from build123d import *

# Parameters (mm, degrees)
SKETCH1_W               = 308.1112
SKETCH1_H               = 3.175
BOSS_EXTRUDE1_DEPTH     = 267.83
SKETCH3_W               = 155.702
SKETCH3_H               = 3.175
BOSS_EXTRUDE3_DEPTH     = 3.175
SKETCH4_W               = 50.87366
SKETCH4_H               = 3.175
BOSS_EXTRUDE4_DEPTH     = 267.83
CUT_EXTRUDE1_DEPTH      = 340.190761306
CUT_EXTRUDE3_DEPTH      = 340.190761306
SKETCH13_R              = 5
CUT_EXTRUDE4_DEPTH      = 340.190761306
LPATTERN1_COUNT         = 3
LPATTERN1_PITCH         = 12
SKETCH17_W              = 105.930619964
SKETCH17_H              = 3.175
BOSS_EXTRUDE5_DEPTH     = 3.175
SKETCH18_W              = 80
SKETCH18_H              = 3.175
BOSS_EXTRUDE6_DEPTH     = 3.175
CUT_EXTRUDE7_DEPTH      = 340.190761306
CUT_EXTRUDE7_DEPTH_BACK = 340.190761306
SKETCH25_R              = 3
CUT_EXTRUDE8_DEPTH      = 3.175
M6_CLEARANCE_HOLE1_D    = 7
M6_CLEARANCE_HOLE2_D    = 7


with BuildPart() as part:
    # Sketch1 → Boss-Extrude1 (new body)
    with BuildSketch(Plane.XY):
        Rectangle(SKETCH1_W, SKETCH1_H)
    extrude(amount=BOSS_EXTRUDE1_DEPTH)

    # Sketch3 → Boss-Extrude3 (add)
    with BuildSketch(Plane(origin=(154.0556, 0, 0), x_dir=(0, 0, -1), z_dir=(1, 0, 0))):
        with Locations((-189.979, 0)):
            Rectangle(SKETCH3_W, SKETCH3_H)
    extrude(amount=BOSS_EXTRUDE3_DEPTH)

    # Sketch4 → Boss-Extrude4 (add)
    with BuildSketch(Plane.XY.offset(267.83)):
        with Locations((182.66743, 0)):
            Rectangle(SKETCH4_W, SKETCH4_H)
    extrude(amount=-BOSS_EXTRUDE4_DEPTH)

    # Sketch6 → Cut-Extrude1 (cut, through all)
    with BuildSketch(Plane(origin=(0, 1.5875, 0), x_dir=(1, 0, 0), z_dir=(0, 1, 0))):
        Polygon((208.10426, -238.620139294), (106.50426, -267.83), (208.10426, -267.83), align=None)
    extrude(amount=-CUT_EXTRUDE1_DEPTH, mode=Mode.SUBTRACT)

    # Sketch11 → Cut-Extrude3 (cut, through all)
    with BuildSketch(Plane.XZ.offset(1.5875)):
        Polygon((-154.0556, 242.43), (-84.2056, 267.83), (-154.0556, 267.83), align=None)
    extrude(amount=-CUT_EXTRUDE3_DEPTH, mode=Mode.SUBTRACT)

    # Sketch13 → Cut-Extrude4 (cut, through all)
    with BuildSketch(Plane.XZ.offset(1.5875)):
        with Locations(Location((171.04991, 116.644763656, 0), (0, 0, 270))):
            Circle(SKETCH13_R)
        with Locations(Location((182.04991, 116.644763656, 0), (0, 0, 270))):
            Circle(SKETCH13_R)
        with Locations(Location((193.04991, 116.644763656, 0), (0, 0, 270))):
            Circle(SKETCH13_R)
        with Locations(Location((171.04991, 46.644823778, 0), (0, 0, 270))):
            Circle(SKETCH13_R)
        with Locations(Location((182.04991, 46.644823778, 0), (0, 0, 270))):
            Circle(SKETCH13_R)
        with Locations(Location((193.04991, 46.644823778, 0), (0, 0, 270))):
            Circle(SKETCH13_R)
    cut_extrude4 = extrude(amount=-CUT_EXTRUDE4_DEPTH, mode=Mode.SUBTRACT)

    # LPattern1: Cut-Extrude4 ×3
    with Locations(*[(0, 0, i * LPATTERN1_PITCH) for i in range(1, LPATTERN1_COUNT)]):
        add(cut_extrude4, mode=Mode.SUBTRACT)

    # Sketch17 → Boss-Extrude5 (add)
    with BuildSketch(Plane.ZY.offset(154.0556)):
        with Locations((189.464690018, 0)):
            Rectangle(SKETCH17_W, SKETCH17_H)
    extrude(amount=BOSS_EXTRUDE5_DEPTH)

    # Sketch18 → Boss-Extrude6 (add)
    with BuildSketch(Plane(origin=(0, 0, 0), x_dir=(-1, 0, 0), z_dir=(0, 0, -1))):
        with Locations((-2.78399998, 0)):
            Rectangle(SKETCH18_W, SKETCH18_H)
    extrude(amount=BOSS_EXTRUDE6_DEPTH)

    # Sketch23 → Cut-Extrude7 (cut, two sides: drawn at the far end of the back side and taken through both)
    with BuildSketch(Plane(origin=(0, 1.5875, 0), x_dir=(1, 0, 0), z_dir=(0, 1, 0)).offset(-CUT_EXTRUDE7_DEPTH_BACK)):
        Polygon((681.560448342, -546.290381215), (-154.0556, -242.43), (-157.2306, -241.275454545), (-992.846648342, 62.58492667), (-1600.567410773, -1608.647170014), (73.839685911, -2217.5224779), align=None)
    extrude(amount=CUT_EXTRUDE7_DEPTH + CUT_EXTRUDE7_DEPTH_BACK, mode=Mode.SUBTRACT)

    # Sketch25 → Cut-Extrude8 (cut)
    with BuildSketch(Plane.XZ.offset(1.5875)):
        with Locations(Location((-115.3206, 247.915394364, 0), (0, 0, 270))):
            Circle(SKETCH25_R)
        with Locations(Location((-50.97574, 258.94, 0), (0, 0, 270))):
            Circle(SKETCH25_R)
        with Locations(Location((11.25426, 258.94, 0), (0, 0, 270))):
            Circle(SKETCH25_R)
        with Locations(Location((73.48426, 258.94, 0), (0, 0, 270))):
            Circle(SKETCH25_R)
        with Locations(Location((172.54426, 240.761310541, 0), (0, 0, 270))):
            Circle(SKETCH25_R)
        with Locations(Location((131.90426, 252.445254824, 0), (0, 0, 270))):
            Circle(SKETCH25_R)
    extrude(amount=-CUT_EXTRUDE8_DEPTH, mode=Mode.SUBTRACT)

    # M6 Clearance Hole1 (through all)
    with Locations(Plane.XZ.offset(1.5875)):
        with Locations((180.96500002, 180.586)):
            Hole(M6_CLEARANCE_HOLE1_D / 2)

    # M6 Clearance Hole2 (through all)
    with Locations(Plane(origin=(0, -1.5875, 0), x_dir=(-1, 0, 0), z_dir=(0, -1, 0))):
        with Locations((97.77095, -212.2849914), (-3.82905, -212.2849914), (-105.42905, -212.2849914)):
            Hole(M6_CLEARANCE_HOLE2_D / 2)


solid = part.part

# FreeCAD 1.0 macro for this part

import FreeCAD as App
import Part
import Sketcher

V = App.Vector
Q = App.Units.Quantity

doc = App.newDocument("Part")
body = doc.addObject("PartDesign::Body", "Body")

# Sketch on XY plane
sketch1 = body.newObject("Sketcher::SketchObject", "Sketch")
sketch1.AttachmentSupport = (doc.getObject("XY_Plane"), [""])
sketch1.MapMode = "FlatFace"
sketch1.addGeometry(Part.LineSegment(V(-154.1, 1.6, 0), V(-154.1, -1.6, 0)), False)
sketch1.addGeometry(Part.LineSegment(V(-154.1, -1.6, 0), V(154.1, -1.6, 0)), False)
sketch1.addGeometry(Part.LineSegment(V(154.1, -1.6, 0), V(154.1, 1.6, 0)), False)
sketch1.addGeometry(Part.LineSegment(V(154.1, 1.6, 0), V(-154.1, 1.6, 0)), False)
sketch1.addConstraint(Sketcher.Constraint("Coincident", 0, 2, 1, 1))
sketch1.addConstraint(Sketcher.Constraint("Coincident", 1, 2, 2, 1))
sketch1.addConstraint(Sketcher.Constraint("Coincident", 2, 2, 3, 1))
sketch1.addConstraint(Sketcher.Constraint("Coincident", 3, 2, 0, 1))
sketch1.addConstraint(Sketcher.Constraint("Vertical", 0))
sketch1.addConstraint(Sketcher.Constraint("Horizontal", 1))
sketch1.addConstraint(Sketcher.Constraint("Vertical", 2))
sketch1.addConstraint(Sketcher.Constraint("Horizontal", 3))
sketch1.addConstraint(Sketcher.Constraint("Symmetric", 0, 2, 2, 2, -1, 1))
sketch1.addConstraint(Sketcher.Constraint("DistanceY", 0, 2, 0, 1, Q("0.125 in")))
sketch1.addConstraint(Sketcher.Constraint("DistanceX", 1, 1, 1, 2, 308.1112))
pad1 = body.newObject("PartDesign::Pad", "Pad")
pad1.Profile = sketch1
pad1.Length = 267.83

# Sketch on YZ plane
sketch2 = body.newObject("Sketcher::SketchObject", "Sketch001")
sketch2.AttachmentSupport = (doc.getObject("YZ_Plane"), [""])
sketch2.MapMode = "FlatFace"
sketch2.AttachmentOffset = App.Placement(V(0, 0, 154.0556), App.Rotation())
sketch2.addGeometry(Part.LineSegment(V(1.6, 267.8, 0), V(-1.6, 267.8, 0)), False)
sketch2.addGeometry(Part.LineSegment(V(-1.6, 267.8, 0), V(-1.6, 112.1, 0)), False)
sketch2.addGeometry(Part.LineSegment(V(-1.6, 112.1, 0), V(1.6, 112.1, 0)), False)
sketch2.addGeometry(Part.LineSegment(V(1.6, 112.1, 0), V(1.6, 267.8, 0)), False)
sketch2.addConstraint(Sketcher.Constraint("Coincident", 0, 2, 1, 1))
sketch2.addConstraint(Sketcher.Constraint("Coincident", 1, 2, 2, 1))
sketch2.addConstraint(Sketcher.Constraint("Coincident", 2, 2, 3, 1))
sketch2.addConstraint(Sketcher.Constraint("Coincident", 3, 2, 0, 1))
sketch2.addConstraint(Sketcher.Constraint("Horizontal", 0))
sketch2.addConstraint(Sketcher.Constraint("Vertical", 1))
sketch2.addConstraint(Sketcher.Constraint("Horizontal", 2))
sketch2.addConstraint(Sketcher.Constraint("Vertical", 3))
sketch2.addConstraint(Sketcher.Constraint("DistanceY", 1, 2, 1, 1, Q("6.13 in")))
sketch2.addConstraint(Sketcher.Constraint("DistanceX", 0, 2, 0, 1, Q("0.125 in")))
sketch2.addConstraint(Sketcher.Constraint("DistanceX", 0, 2, -1, 1, Q("0.0625 in")))
sketch2.addConstraint(Sketcher.Constraint("DistanceY", -1, 1, 0, 2, 267.83))
pad2 = body.newObject("PartDesign::Pad", "Pad001")
pad2.Profile = sketch2
pad2.Length = Q("0.125 in")

# Sketch on XY plane
sketch3 = body.newObject("Sketcher::SketchObject", "Sketch002")
sketch3.AttachmentSupport = (doc.getObject("XY_Plane"), [""])
sketch3.MapMode = "FlatFace"
sketch3.AttachmentOffset = App.Placement(V(0, 0, 267.83), App.Rotation())
sketch3.addGeometry(Part.LineSegment(V(157.2, 1.6, 0), V(157.2, -1.6, 0)), False)
sketch3.addGeometry(Part.LineSegment(V(157.2, -1.6, 0), V(208.1, -1.6, 0)), False)
sketch3.addGeometry(Part.LineSegment(V(208.1, -1.6, 0), V(208.1, 1.6, 0)), False)
sketch3.addGeometry(Part.LineSegment(V(208.1, 1.6, 0), V(157.2, 1.6, 0)), False)
sketch3.addConstraint(Sketcher.Constraint("Coincident", 0, 2, 1, 1))
sketch3.addConstraint(Sketcher.Constraint("Coincident", 1, 2, 2, 1))
sketch3.addConstraint(Sketcher.Constraint("Coincident", 2, 2, 3, 1))
sketch3.addConstraint(Sketcher.Constraint("Coincident", 3, 2, 0, 1))
sketch3.addConstraint(Sketcher.Constraint("Vertical", 0))
sketch3.addConstraint(Sketcher.Constraint("Horizontal", 1))
sketch3.addConstraint(Sketcher.Constraint("Vertical", 2))
sketch3.addConstraint(Sketcher.Constraint("Horizontal", 3))
sketch3.addConstraint(Sketcher.Constraint("DistanceY", 0, 2, 0, 1, Q("0.125 in")))
sketch3.addConstraint(Sketcher.Constraint("DistanceX", 1, 1, 1, 2, Q("2.0029 in")))
sketch3.addConstraint(Sketcher.Constraint("DistanceY", 0, 2, -1, 1, Q("0.0625 in")))
sketch3.addConstraint(Sketcher.Constraint("DistanceX", -1, 1, 0, 2, 157.2306))
pad3 = body.newObject("PartDesign::Pad", "Pad002")
pad3.Profile = sketch3
pad3.Length = 267.83
pad3.Reversed = True

# Sketch on XZ plane
sketch4 = body.newObject("Sketcher::SketchObject", "Sketch003")
sketch4.AttachmentSupport = (doc.getObject("XZ_Plane"), [""])
sketch4.MapMode = "FlatFace"
sketch4.AttachmentOffset = App.Placement(V(0, 0, -0.0625 * 25.4), App.Rotation())
sketch4.addGeometry(Part.LineSegment(V(208, 239, 0), V(107, 268, 0)), False)
sketch4.addGeometry(Part.LineSegment(V(107, 268, 0), V(208, 268, 0)), False)
sketch4.addGeometry(Part.LineSegment(V(208, 268, 0), V(208, 239, 0)), False)
sketch4.addConstraint(Sketcher.Constraint("Coincident", 0, 2, 1, 1))
sketch4.addConstraint(Sketcher.Constraint("Coincident", 1, 2, 2, 1))
sketch4.addConstraint(Sketcher.Constraint("Coincident", 2, 2, 0, 1))
sketch4.addConstraint(Sketcher.Constraint("Horizontal", 1))
sketch4.addConstraint(Sketcher.Constraint("Vertical", 2))
sketch4.addConstraint(Sketcher.Constraint("DistanceX", 1, 1, 1, 2, Q("4 in")))
sketch4.addConstraint(Sketcher.Constraint("DistanceY", 2, 2, 2, 1, 29.209861))
sketch4.addConstraint(Sketcher.Constraint("DistanceY", -1, 1, 0, 2, 267.83))
sketch4.addConstraint(Sketcher.Constraint("DistanceX", -1, 1, 0, 2, 106.50426))
pocket1 = body.newObject("PartDesign::Pocket", "Pocket")
pocket1.Profile = sketch4
pocket1.Type = "ThroughAll"
pocket1.Reversed = True

# Sketch on XZ plane
sketch5 = body.newObject("Sketcher::SketchObject", "Sketch004")
sketch5.AttachmentSupport = (doc.getObject("XZ_Plane"), [""])
sketch5.MapMode = "FlatFace"
sketch5.AttachmentOffset = App.Placement(V(0, 0, 0.0625 * 25.4), App.Rotation())
sketch5.addGeometry(Part.LineSegment(V(-154, 242, 0), V(-84, 268, 0)), False)
sketch5.addGeometry(Part.LineSegment(V(-84, 268, 0), V(-154, 268, 0)), False)
sketch5.addGeometry(Part.LineSegment(V(-154, 268, 0), V(-154, 242, 0)), False)
sketch5.addConstraint(Sketcher.Constraint("Coincident", 0, 2, 1, 1))
sketch5.addConstraint(Sketcher.Constraint("Coincident", 1, 2, 2, 1))
sketch5.addConstraint(Sketcher.Constraint("Coincident", 2, 2, 0, 1))
sketch5.addConstraint(Sketcher.Constraint("Horizontal", 1))
sketch5.addConstraint(Sketcher.Constraint("Vertical", 2))
sketch5.addConstraint(Sketcher.Constraint("DistanceY", 2, 2, 2, 1, Q("1 in")))
sketch5.addConstraint(Sketcher.Constraint("DistanceX", 1, 2, 1, 1, Q("2.75 in")))
sketch5.addConstraint(Sketcher.Constraint("DistanceX", 0, 2, -1, 1, 84.2056))
sketch5.addConstraint(Sketcher.Constraint("DistanceY", -1, 1, 0, 2, 267.83))
pocket2 = body.newObject("PartDesign::Pocket", "Pocket001")
pocket2.Profile = sketch5
pocket2.Type = "ThroughAll"

# Sketch on XZ plane
sketch6 = body.newObject("Sketcher::SketchObject", "Sketch005")
sketch6.AttachmentSupport = (doc.getObject("XZ_Plane"), [""])
sketch6.MapMode = "FlatFace"
sketch6.AttachmentOffset = App.Placement(V(0, 0, 0.0625 * 25.4), App.Rotation())
sketch6.addGeometry(Part.Circle(V(171, 117, 0), V(0, 0, 1), 5), False)
sketch6.addGeometry(Part.Circle(V(182, 117, 0), V(0, 0, 1), 5), False)
sketch6.addGeometry(Part.Circle(V(193, 117, 0), V(0, 0, 1), 5), False)
sketch6.addGeometry(Part.Circle(V(171, 47, 0), V(0, 0, 1), 5), False)
sketch6.addGeometry(Part.Circle(V(182, 47, 0), V(0, 0, 1), 5), False)
sketch6.addGeometry(Part.Circle(V(193, 47, 0), V(0, 0, 1), 5), False)
sketch6.addConstraint(Sketcher.Constraint("Equal", 0, 1))
sketch6.addConstraint(Sketcher.Constraint("Equal", 1, 2))
sketch6.addConstraint(Sketcher.Constraint("Equal", 2, 3))
sketch6.addConstraint(Sketcher.Constraint("Equal", 3, 4))
sketch6.addConstraint(Sketcher.Constraint("Equal", 4, 5))
sketch6.addConstraint(Sketcher.Constraint("Horizontal", 0, 3, 1, 3))
sketch6.addConstraint(Sketcher.Constraint("Horizontal", 1, 3, 2, 3))
sketch6.addConstraint(Sketcher.Constraint("Horizontal", 3, 3, 4, 3))
sketch6.addConstraint(Sketcher.Constraint("Horizontal", 4, 3, 5, 3))
sketch6.addConstraint(Sketcher.Constraint("Vertical", 0, 3, 3, 3))
sketch6.addConstraint(Sketcher.Constraint("Vertical", 1, 3, 4, 3))
sketch6.addConstraint(Sketcher.Constraint("Vertical", 2, 3, 5, 3))
sketch6.addConstraint(Sketcher.Constraint("Diameter", 0, 10.0))
sketch6.addConstraint(Sketcher.Constraint("DistanceX", 0, 3, 1, 3, 11.0))
sketch6.addConstraint(Sketcher.Constraint("DistanceX", 1, 3, 2, 3, 11.0))
sketch6.addConstraint(Sketcher.Constraint("DistanceX", -1, 1, 0, 3, 171.04991))
sketch6.addConstraint(Sketcher.Constraint("DistanceY", 3, 3, 0, 3, 69.99994))
sketch6.addConstraint(Sketcher.Constraint("DistanceY", -1, 1, 0, 3, 116.644764))
pocket3 = body.newObject("PartDesign::Pocket", "Pocket002")
pocket3.Profile = sketch6
pocket3.Type = "ThroughAll"
doc.recompute()

linearpattern = body.newObject("PartDesign::LinearPattern", "LinearPattern")
linearpattern.Originals = [pocket3]
linearpattern.Direction = (doc.getObject("Z_Axis"), [""])
linearpattern.Mode = "offset"
linearpattern.Offset = 12
linearpattern.Occurrences = 3
body.Tip = linearpattern

# Sketch on YZ plane
sketch7 = body.newObject("Sketcher::SketchObject", "Sketch006")
sketch7.AttachmentSupport = (doc.getObject("YZ_Plane"), [""])
sketch7.MapMode = "FlatFace"
sketch7.AttachmentOffset = App.Placement(V(0, 0, -154.0556), App.Rotation())
sketch7.addGeometry(Part.LineSegment(V(1.6, 136.5, 0), V(-1.6, 136.5, 0)), False)
sketch7.addGeometry(Part.LineSegment(V(-1.6, 136.5, 0), V(-1.6, 242.4, 0)), False)
sketch7.addGeometry(Part.LineSegment(V(-1.6, 242.4, 0), V(1.6, 242.4, 0)), False)
sketch7.addGeometry(Part.LineSegment(V(1.6, 242.4, 0), V(1.6, 136.5, 0)), False)
sketch7.addConstraint(Sketcher.Constraint("Coincident", 0, 2, 1, 1))
sketch7.addConstraint(Sketcher.Constraint("Coincident", 1, 2, 2, 1))
sketch7.addConstraint(Sketcher.Constraint("Coincident", 2, 2, 3, 1))
sketch7.addConstraint(Sketcher.Constraint("Coincident", 3, 2, 0, 1))
sketch7.addConstraint(Sketcher.Constraint("Horizontal", 0))
sketch7.addConstraint(Sketcher.Constraint("Vertical", 1))
sketch7.addConstraint(Sketcher.Constraint("Horizontal", 2))
sketch7.addConstraint(Sketcher.Constraint("Vertical", 3))
sketch7.addConstraint(Sketcher.Constraint("DistanceX", 0, 2, 0, 1, Q("0.125 in")))
sketch7.addConstraint(Sketcher.Constraint("DistanceX", 0, 2, -1, 1, Q("0.0625 in")))
sketch7.addConstraint(Sketcher.Constraint("DistanceY", 1, 1, 1, 2, 105.93062))
sketch7.addConstraint(Sketcher.Constraint("DistanceY", -1, 1, 1, 2, 242.43))
pad4 = body.newObject("PartDesign::Pad", "Pad003")
pad4.Profile = sketch7
pad4.Length = Q("0.125 in")
pad4.Reversed = True

# Sketch on XY plane
sketch8 = body.newObject("Sketcher::SketchObject", "Sketch007")
sketch8.AttachmentSupport = (doc.getObject("XY_Plane"), [""])
sketch8.MapMode = "FlatFace"
sketch8.addGeometry(Part.LineSegment(V(42.8, 1.6, 0), V(42.8, -1.6, 0)), False)
sketch8.addGeometry(Part.LineSegment(V(42.8, -1.6, 0), V(-37.2, -1.6, 0)), False)
sketch8.addGeometry(Part.LineSegment(V(-37.2, -1.6, 0), V(-37.2, 1.6, 0)), False)
sketch8.addGeometry(Part.LineSegment(V(-37.2, 1.6, 0), V(42.8, 1.6, 0)), False)
sketch8.addConstraint(Sketcher.Constraint("Coincident", 0, 2, 1, 1))
sketch8.addConstraint(Sketcher.Constraint("Coincident", 1, 2, 2, 1))
sketch8.addConstraint(Sketcher.Constraint("Coincident", 2, 2, 3, 1))
sketch8.addConstraint(Sketcher.Constraint("Coincident", 3, 2, 0, 1))
sketch8.addConstraint(Sketcher.Constraint("Vertical", 0))
sketch8.addConstraint(Sketcher.Constraint("Horizontal", 1))
sketch8.addConstraint(Sketcher.Constraint("Vertical", 2))
sketch8.addConstraint(Sketcher.Constraint("Horizontal", 3))
sketch8.addConstraint(Sketcher.Constraint("DistanceY", 0, 2, 0, 1, Q("0.125 in")))
sketch8.addConstraint(Sketcher.Constraint("DistanceY", 0, 2, -1, 1, Q("0.0625 in")))
sketch8.addConstraint(Sketcher.Constraint("DistanceX", 1, 2, 1, 1, 80.0))
sketch8.addConstraint(Sketcher.Constraint("DistanceX", -1, 1, 0, 2, 42.784))
pad5 = body.newObject("PartDesign::Pad", "Pad004")
pad5.Profile = sketch8
pad5.Length = Q("0.125 in")
pad5.Reversed = True

# Sketch on XZ plane
sketch9 = body.newObject("Sketcher::SketchObject", "Sketch008")
sketch9.AttachmentSupport = (doc.getObject("XZ_Plane"), [""])
sketch9.MapMode = "FlatFace"
sketch9.AttachmentOffset = App.Placement(V(0, 0, -0.0625 * 25.4), App.Rotation())
sketch9.addGeometry(Part.LineSegment(V(681.6, 546.3, 0), V(-154.1, 242.4, 0)), False)
sketch9.addGeometry(Part.LineSegment(V(-154.1, 242.4, 0), V(-157.2, 241.3, 0)), False)
sketch9.addGeometry(Part.LineSegment(V(-157.2, 241.3, 0), V(-992.8, -62.6, 0)), False)
sketch9.addGeometry(Part.LineSegment(V(-992.8, -62.6, 0), V(-1600.6, 1608.6, 0)), False)
sketch9.addGeometry(Part.LineSegment(V(-1600.6, 1608.6, 0), V(73.8, 2217.5, 0)), False)
sketch9.addGeometry(Part.LineSegment(V(73.8, 2217.5, 0), V(681.6, 546.3, 0)), False)
sketch9.addConstraint(Sketcher.Constraint("Coincident", 0, 2, 1, 1))
sketch9.addConstraint(Sketcher.Constraint("Coincident", 1, 2, 2, 1))
sketch9.addConstraint(Sketcher.Constraint("Coincident", 2, 2, 3, 1))
sketch9.addConstraint(Sketcher.Constraint("Coincident", 3, 2, 4, 1))
sketch9.addConstraint(Sketcher.Constraint("Coincident", 4, 2, 5, 1))
sketch9.addConstraint(Sketcher.Constraint("Coincident", 5, 2, 0, 1))
sketch9.addConstraint(Sketcher.Constraint("Parallel", 0, 1))
sketch9.addConstraint(Sketcher.Constraint("Parallel", 1, 2))
sketch9.addConstraint(Sketcher.Constraint("Perpendicular", 2, 3))
sketch9.addConstraint(Sketcher.Constraint("Perpendicular", 3, 4))
sketch9.addConstraint(Sketcher.Constraint("Perpendicular", 4, 5))
sketch9.addConstraint(Sketcher.Constraint("Equal", 0, 2))
sketch9.addConstraint(Sketcher.Constraint("DistanceX", 1, 2, 0, 2, Q("0.125 in")))
sketch9.addConstraint(Sketcher.Constraint("DistanceX", 0, 2, -1, 1, 154.0556))
sketch9.addConstraint(Sketcher.Constraint("DistanceY", -1, 1, 0, 2, 242.43))
sketch9.addConstraint(Sketcher.Constraint("Distance", 3, 1778.297288))
sketch9.addConstraint(Sketcher.Constraint("Distance", 4, 1781.67569))
sketch9.addConstraint(Sketcher.Constraint("DistanceX", 2, 2, -1, 1, 992.846648))
pocket4 = body.newObject("PartDesign::Pocket", "Pocket003")
pocket4.Profile = sketch9
pocket4.Type = "ThroughAll"
pocket4.Midplane = True

# Sketch on XZ plane
sketch10 = body.newObject("Sketcher::SketchObject", "Sketch009")
sketch10.AttachmentSupport = (doc.getObject("XZ_Plane"), [""])
sketch10.MapMode = "FlatFace"
sketch10.AttachmentOffset = App.Placement(V(0, 0, 0.0625 * 25.4), App.Rotation())
sketch10.addGeometry(Part.Circle(V(-115.3, 247.9, 0), V(0, 0, 1), 3), False)
sketch10.addGeometry(Part.Circle(V(-51, 258.9, 0), V(0, 0, 1), 3), False)
sketch10.addGeometry(Part.Circle(V(11.3, 258.9, 0), V(0, 0, 1), 3), False)
sketch10.addGeometry(Part.Circle(V(73.5, 258.9, 0), V(0, 0, 1), 3), False)
sketch10.addGeometry(Part.Circle(V(172.5, 240.8, 0), V(0, 0, 1), 3), False)
sketch10.addGeometry(Part.Circle(V(131.9, 252.4, 0), V(0, 0, 1), 3), False)
sketch10.addConstraint(Sketcher.Constraint("Equal", 0, 1))
sketch10.addConstraint(Sketcher.Constraint("Equal", 1, 2))
sketch10.addConstraint(Sketcher.Constraint("Equal", 2, 3))
sketch10.addConstraint(Sketcher.Constraint("Equal", 3, 4))
sketch10.addConstraint(Sketcher.Constraint("Equal", 4, 5))
sketch10.addConstraint(Sketcher.Constraint("Horizontal", 1, 3, 2, 3))
sketch10.addConstraint(Sketcher.Constraint("Horizontal", 2, 3, 3, 3))
sketch10.addConstraint(Sketcher.Constraint("DistanceX", 1, 3, 3, 3, Q("4.9 in")))
sketch10.addConstraint(Sketcher.Constraint("DistanceX", 3, 3, 4, 3, Q("3.9 in")))
sketch10.addConstraint(Sketcher.Constraint("DistanceX", 5, 3, 4, 3, Q("1.6 in")))
sketch10.addConstraint(Sketcher.Constraint("Diameter", 0, 6.0))
sketch10.addConstraint(Sketcher.Constraint("DistanceX", 1, 3, 2, 3, Q("2.45 in")))
sketch10.addConstraint(Sketcher.Constraint("DistanceX", 0, 3, -1, 1, 115.3206))
sketch10.addConstraint(Sketcher.Constraint("DistanceY", -1, 1, 1, 3, 258.94))
sketch10.addConstraint(Sketcher.Constraint("DistanceX", 1, 3, -1, 1, 50.97574))
sketch10.addConstraint(Sketcher.Constraint("DistanceY", -1, 1, 4, 3, 240.761311))
sketch10.addConstraint(Sketcher.Constraint("DistanceY", 0, 3, 5, 3, 4.52986))
sketch10.addConstraint(Sketcher.Constraint("DistanceY", -1, 1, 0, 3, 247.915394))
pocket5 = body.newObject("PartDesign::Pocket", "Pocket004")
pocket5.Profile = sketch10
pocket5.Length = Q("0.125 in")

# Sketch on XZ plane
sketch11 = body.newObject("Sketcher::SketchObject", "Sketch010")
sketch11.AttachmentSupport = (doc.getObject("XZ_Plane"), [""])
sketch11.MapMode = "FlatFace"
sketch11.AttachmentOffset = App.Placement(V(0, 0, 0.0625 * 25.4), App.Rotation())
sketch11.addGeometry(Part.Circle(V(181, 180.6, 0), V(0, 0, 1), 3.5), False)
sketch11.addConstraint(Sketcher.Constraint("Diameter", 0, 7.0))
sketch11.addConstraint(Sketcher.Constraint("DistanceX", -1, 1, 0, 3, 180.965))
sketch11.addConstraint(Sketcher.Constraint("DistanceY", -1, 1, 0, 3, 180.586))
doc.recompute()
hole = body.newObject("PartDesign::Hole", "Hole")
hole.Profile = sketch11
hole.ThreadType = "None"
hole.Diameter = 7
hole.DepthType = "ThroughAll"

# Sketch on XZ plane
sketch12 = body.newObject("Sketcher::SketchObject", "Sketch011")
sketch12.AttachmentSupport = (doc.getObject("XZ_Plane"), [""])
sketch12.MapMode = "FlatFace"
sketch12.AttachmentOffset = App.Placement(V(0, 0, 0.0625 * 25.4), App.Rotation())
sketch12.addGeometry(Part.Circle(V(-97.8, 212.3, 0), V(0, 0, 1), 3.5), False)
sketch12.addGeometry(Part.Circle(V(3.8, 212.3, 0), V(0, 0, 1), 3.5), False)
sketch12.addGeometry(Part.Circle(V(105.4, 212.3, 0), V(0, 0, 1), 3.5), False)
sketch12.addConstraint(Sketcher.Constraint("Equal", 0, 1))
sketch12.addConstraint(Sketcher.Constraint("Equal", 1, 2))
sketch12.addConstraint(Sketcher.Constraint("Horizontal", 0, 3, 1, 3))
sketch12.addConstraint(Sketcher.Constraint("Horizontal", 1, 3, 2, 3))
sketch12.addConstraint(Sketcher.Constraint("DistanceX", 0, 3, 1, 3, Q("4 in")))
sketch12.addConstraint(Sketcher.Constraint("DistanceX", 1, 3, 2, 3, Q("4 in")))
sketch12.addConstraint(Sketcher.Constraint("Diameter", 0, 7.0))
sketch12.addConstraint(Sketcher.Constraint("DistanceX", 0, 3, -1, 1, 97.77095))
sketch12.addConstraint(Sketcher.Constraint("DistanceY", -1, 1, 0, 3, 212.284991))
doc.recompute()
hole2 = body.newObject("PartDesign::Hole", "Hole001")
hole2.Profile = sketch12
hole2.ThreadType = "None"
hole2.Diameter = 7
hole2.DepthType = "ThroughAll"

doc.recompute()
